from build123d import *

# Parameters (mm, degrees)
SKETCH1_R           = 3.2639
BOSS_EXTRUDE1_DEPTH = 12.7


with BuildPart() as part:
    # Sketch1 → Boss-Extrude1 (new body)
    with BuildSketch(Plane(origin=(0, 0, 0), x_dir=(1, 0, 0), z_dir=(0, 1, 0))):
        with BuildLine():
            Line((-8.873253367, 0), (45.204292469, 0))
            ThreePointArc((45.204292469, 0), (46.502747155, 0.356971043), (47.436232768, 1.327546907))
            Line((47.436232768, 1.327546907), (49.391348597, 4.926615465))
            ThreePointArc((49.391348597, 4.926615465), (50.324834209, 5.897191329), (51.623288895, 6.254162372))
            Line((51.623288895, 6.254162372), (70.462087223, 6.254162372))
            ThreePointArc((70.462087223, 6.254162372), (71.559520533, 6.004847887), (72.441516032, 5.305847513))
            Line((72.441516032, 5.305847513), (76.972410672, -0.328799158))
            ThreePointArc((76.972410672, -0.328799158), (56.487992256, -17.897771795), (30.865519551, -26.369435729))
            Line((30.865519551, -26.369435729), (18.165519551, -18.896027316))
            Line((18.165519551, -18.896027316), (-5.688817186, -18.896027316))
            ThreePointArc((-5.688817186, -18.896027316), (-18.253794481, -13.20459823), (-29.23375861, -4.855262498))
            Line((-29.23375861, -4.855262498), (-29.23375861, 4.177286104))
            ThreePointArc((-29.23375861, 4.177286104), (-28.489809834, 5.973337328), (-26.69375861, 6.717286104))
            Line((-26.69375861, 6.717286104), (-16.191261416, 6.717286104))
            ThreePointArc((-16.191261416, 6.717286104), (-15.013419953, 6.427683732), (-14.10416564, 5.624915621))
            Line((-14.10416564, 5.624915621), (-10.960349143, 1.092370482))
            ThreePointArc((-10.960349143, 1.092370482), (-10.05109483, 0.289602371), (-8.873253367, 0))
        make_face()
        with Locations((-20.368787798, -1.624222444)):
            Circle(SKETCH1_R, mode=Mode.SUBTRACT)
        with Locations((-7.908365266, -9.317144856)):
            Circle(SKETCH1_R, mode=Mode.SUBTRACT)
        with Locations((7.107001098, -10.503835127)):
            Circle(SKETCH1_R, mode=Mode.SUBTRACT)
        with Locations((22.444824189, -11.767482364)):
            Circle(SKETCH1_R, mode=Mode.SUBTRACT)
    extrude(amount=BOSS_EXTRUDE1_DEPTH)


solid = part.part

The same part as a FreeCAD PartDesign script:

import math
import FreeCAD as App
import Part
import Sketcher
from FreeCAD import Vector
Q = App.Units.Quantity

doc = App.newDocument("Part")
params = doc.addObject("Spreadsheet::Sheet", "Params")
for row, (alias, value) in enumerate([
    ("sketch1_radius", "0.1 in"),
    ("sketch1_diameter", "0.257 in"),
    ("pad1_length", "0.5 in"),
], start=1):
    params.set(f"A{row}", alias)
    params.set(f"B{row}", "=" + value)
    params.setAlias(f"B{row}", alias)

body = doc.addObject("PartDesign::Body", "Body")

# Sketch on XZ plane
sketch1 = body.newObject("Sketcher::SketchObject", "Sketch")
sketch1.AttachmentSupport = (doc.getObject("XZ_Plane"), [""])
sketch1.MapMode = "FlatFace"
sketch1.addGeometry([
    Part.LineSegment(Vector(45.2, 0, 0), Vector(-8.9, 0, 0)),  # 0
    Part.ArcOfCircle(Part.Circle(Vector(-8.9, -2.5, 0), Vector(0, 0, 1), 2.5), math.radians(90), math.radians(145)),  # 1
    Part.LineSegment(Vector(-11, -1.1, 0), Vector(-14.1, -5.6, 0)),  # 2
    Part.ArcOfCircle(Part.Circle(Vector(-16.2, -4.2, 0), Vector(0, 0, 1), 2.5), math.radians(-90), math.radians(-35)),  # 3
    Part.LineSegment(Vector(-16.2, -6.7, 0), Vector(-26.7, -6.7, 0)),  # 4
    Part.ArcOfCircle(Part.Circle(Vector(-26.7, -4.2, 0), Vector(0, 0, 1), 2.5), math.radians(-180), math.radians(-90)),  # 5
    Part.LineSegment(Vector(-29.2, -4.2, 0), Vector(-29.2, 4.9, 0)),  # 6
    Part.ArcOfCircle(Part.Circle(Vector(13.2, -39.6, 0), Vector(0, 0, 1), 61.5), math.radians(108), math.radians(134)),  # 7
    Part.LineSegment(Vector(-5.7, 18.9, 0), Vector(18.2, 18.9, 0)),  # 8
    Part.LineSegment(Vector(18.2, 18.9, 0), Vector(30.9, 26.4, 0)),  # 9
    Part.ArcOfCircle(Part.Circle(Vector(22.2, -42.8, 0), Vector(0, 0, 1), 69.7), math.radians(38), math.radians(83)),  # 10
    Part.LineSegment(Vector(77, 0.3, 0), Vector(72.4, -5.3, 0)),  # 11
    Part.ArcOfCircle(Part.Circle(Vector(70.5, -3.7, 0), Vector(0, 0, 1), 2.5), math.radians(-90), math.radians(-39)),  # 12
    Part.LineSegment(Vector(70.5, -6.3, 0), Vector(51.6, -6.3, 0)),  # 13
    Part.ArcOfCircle(Part.Circle(Vector(51.6, -3.7, 0), Vector(0, 0, 1), 2.5), math.radians(-151), math.radians(-90)),  # 14
    Part.LineSegment(Vector(49.4, -4.9, 0), Vector(47.4, -1.3, 0)),  # 15
    Part.ArcOfCircle(Part.Circle(Vector(45.2, -2.5, 0), Vector(0, 0, 1), 2.5), math.radians(29), math.radians(90)),  # 16
    Part.Circle(Vector(22.4, 11.8, 0), Vector(0, 0, 1), 3.3),  # 17
    Part.Circle(Vector(7.1, 10.5, 0), Vector(0, 0, 1), 3.3),  # 18
    Part.Circle(Vector(-7.9, 9.3, 0), Vector(0, 0, 1), 3.3),  # 19
    Part.Circle(Vector(-20.4, 1.6, 0), Vector(0, 0, 1), 3.3),  # 20
], False)
sketch1.addConstraint([
    Sketcher.Constraint("Tangent", 0, 2, 1, 1),
    Sketcher.Constraint("Tangent", 1, 2, 2, 1),
    Sketcher.Constraint("Tangent", 2, 2, 3, 2),
    Sketcher.Constraint("Tangent", 3, 1, 4, 1),
    Sketcher.Constraint("Tangent", 4, 2, 5, 2),
    Sketcher.Constraint("Tangent", 5, 1, 6, 1),
    Sketcher.Constraint("Coincident", 6, 2, 7, 2),
    Sketcher.Constraint("Coincident", 7, 1, 8, 1),
    Sketcher.Constraint("Coincident", 8, 2, 9, 1),
    Sketcher.Constraint("Coincident", 9, 2, 10, 2),
    Sketcher.Constraint("Coincident", 10, 1, 11, 1),
    Sketcher.Constraint("Tangent", 11, 2, 12, 2),
    Sketcher.Constraint("Tangent", 12, 1, 13, 1),
    Sketcher.Constraint("Tangent", 13, 2, 14, 2),
    Sketcher.Constraint("Tangent", 14, 1, 15, 1),
    Sketcher.Constraint("Tangent", 15, 2, 16, 1),
    Sketcher.Constraint("Tangent", 16, 2, 0, 1),
    Sketcher.Constraint("Horizontal", 0),
    Sketcher.Constraint("Horizontal", 4),
    Sketcher.Constraint("Vertical", 6),
    Sketcher.Constraint("Horizontal", 8),
    Sketcher.Constraint("Horizontal", 13),
    Sketcher.Constraint("Equal", 1, 3),
    Sketcher.Constraint("Equal", 3, 5),
    Sketcher.Constraint("Equal", 5, 12),
    Sketcher.Constraint("Equal", 12, 14),
    Sketcher.Constraint("Equal", 14, 16),
    Sketcher.Constraint("Equal", 17, 18),
    Sketcher.Constraint("Equal", 18, 19),
    Sketcher.Constraint("Equal", 19, 20),
    Sketcher.Constraint("PointOnObject", 0, 2, -1),
    Sketcher.Constraint("Radius", 1, Q("0.1 in")),
    Sketcher.Constraint("Diameter", 17, Q("0.257 in")),
    Sketcher.Constraint("DistanceX", 8, 2, 9, 2, Q("0.5 in")),
    Sketcher.Constraint("Radius", 10, Q("69.70525 mm")),
    Sketcher.Constraint("DistanceX", 13, 2, 13, 1, Q("18.838798 mm")),
    Sketcher.Constraint("Radius", 7, Q("61.484256 mm")),
    Sketcher.Constraint("DistanceY", 6, 1, 6, 2, Q("9.032549 mm")),
    Sketcher.Constraint("DistanceX", -1, 1, 18, 3, Q("7.107001 mm")),
    Sketcher.Constraint("DistanceY", -1, 1, 10, 1, Q("0.328799 mm")),
    Sketcher.Constraint("DistanceY", 18, 3, 9, 2, Q("15.865601 mm")),
    Sketcher.Constraint("DistanceY", 14, 3, 9, 2, Q("30.083598 mm")),
    Sketcher.Constraint("Distance", 11, Q("7.23037 mm")),
    Sketcher.Constraint("DistanceX", 0, 2, 0, 1, Q("54.077546 mm")),
    Sketcher.Constraint("DistanceX", 4, 2, 4, 1, Q("10.502497 mm")),
    Sketcher.Constraint("DistanceX", 8, 1, 8, 2, Q("23.854337 mm")),
    Sketcher.Constraint("DistanceX", 3, 3, -1, 1, Q("16.191261 mm")),
    Sketcher.Constraint("DistanceY", 7, 3, -1, 1, Q("39.602818 mm")),
    Sketcher.Constraint("DistanceY", 10, 3, -1, 1, Q("42.796179 mm")),
    Sketcher.Constraint("DistanceX", -1, 1, 14, 3, Q("51.623289 mm")),
    Sketcher.Constraint("DistanceX", 1, 2, -1, 1, Q("10.960349 mm")),
    Sketcher.Constraint("DistanceY", 1, 2, -1, 1, Q("1.09237 mm")),
    Sketcher.Constraint("DistanceX", -1, 1, 8, 2, Q("18.16552 mm")),
    Sketcher.Constraint("DistanceX", 17, 3, 16, 3, Q("22.759468 mm")),
    Sketcher.Constraint("DistanceY", 3, 3, 17, 3, Q("15.944768 mm")),
    Sketcher.Constraint("DistanceX", 1, 3, 19, 3, Q("0.964888 mm")),
    Sketcher.Constraint("DistanceY", 19, 3, 18, 3, Q("1.18669 mm")),
    Sketcher.Constraint("DistanceY", 3, 3, 20, 3, Q("5.801509 mm")),
    Sketcher.Constraint("DistanceX", 5, 3, 20, 3, Q("6.324971 mm")),
])
sketch1.setExpression("Constraints[31]", "Params.sketch1_radius")
sketch1.setExpression("Constraints[32]", "Params.sketch1_diameter")
pad1 = body.newObject("PartDesign::Pad", "Pad")
pad1.Profile = sketch1
pad1.setExpression("Length", "Params.pad1_length")
pad1.Reversed = True

doc.recompute()
